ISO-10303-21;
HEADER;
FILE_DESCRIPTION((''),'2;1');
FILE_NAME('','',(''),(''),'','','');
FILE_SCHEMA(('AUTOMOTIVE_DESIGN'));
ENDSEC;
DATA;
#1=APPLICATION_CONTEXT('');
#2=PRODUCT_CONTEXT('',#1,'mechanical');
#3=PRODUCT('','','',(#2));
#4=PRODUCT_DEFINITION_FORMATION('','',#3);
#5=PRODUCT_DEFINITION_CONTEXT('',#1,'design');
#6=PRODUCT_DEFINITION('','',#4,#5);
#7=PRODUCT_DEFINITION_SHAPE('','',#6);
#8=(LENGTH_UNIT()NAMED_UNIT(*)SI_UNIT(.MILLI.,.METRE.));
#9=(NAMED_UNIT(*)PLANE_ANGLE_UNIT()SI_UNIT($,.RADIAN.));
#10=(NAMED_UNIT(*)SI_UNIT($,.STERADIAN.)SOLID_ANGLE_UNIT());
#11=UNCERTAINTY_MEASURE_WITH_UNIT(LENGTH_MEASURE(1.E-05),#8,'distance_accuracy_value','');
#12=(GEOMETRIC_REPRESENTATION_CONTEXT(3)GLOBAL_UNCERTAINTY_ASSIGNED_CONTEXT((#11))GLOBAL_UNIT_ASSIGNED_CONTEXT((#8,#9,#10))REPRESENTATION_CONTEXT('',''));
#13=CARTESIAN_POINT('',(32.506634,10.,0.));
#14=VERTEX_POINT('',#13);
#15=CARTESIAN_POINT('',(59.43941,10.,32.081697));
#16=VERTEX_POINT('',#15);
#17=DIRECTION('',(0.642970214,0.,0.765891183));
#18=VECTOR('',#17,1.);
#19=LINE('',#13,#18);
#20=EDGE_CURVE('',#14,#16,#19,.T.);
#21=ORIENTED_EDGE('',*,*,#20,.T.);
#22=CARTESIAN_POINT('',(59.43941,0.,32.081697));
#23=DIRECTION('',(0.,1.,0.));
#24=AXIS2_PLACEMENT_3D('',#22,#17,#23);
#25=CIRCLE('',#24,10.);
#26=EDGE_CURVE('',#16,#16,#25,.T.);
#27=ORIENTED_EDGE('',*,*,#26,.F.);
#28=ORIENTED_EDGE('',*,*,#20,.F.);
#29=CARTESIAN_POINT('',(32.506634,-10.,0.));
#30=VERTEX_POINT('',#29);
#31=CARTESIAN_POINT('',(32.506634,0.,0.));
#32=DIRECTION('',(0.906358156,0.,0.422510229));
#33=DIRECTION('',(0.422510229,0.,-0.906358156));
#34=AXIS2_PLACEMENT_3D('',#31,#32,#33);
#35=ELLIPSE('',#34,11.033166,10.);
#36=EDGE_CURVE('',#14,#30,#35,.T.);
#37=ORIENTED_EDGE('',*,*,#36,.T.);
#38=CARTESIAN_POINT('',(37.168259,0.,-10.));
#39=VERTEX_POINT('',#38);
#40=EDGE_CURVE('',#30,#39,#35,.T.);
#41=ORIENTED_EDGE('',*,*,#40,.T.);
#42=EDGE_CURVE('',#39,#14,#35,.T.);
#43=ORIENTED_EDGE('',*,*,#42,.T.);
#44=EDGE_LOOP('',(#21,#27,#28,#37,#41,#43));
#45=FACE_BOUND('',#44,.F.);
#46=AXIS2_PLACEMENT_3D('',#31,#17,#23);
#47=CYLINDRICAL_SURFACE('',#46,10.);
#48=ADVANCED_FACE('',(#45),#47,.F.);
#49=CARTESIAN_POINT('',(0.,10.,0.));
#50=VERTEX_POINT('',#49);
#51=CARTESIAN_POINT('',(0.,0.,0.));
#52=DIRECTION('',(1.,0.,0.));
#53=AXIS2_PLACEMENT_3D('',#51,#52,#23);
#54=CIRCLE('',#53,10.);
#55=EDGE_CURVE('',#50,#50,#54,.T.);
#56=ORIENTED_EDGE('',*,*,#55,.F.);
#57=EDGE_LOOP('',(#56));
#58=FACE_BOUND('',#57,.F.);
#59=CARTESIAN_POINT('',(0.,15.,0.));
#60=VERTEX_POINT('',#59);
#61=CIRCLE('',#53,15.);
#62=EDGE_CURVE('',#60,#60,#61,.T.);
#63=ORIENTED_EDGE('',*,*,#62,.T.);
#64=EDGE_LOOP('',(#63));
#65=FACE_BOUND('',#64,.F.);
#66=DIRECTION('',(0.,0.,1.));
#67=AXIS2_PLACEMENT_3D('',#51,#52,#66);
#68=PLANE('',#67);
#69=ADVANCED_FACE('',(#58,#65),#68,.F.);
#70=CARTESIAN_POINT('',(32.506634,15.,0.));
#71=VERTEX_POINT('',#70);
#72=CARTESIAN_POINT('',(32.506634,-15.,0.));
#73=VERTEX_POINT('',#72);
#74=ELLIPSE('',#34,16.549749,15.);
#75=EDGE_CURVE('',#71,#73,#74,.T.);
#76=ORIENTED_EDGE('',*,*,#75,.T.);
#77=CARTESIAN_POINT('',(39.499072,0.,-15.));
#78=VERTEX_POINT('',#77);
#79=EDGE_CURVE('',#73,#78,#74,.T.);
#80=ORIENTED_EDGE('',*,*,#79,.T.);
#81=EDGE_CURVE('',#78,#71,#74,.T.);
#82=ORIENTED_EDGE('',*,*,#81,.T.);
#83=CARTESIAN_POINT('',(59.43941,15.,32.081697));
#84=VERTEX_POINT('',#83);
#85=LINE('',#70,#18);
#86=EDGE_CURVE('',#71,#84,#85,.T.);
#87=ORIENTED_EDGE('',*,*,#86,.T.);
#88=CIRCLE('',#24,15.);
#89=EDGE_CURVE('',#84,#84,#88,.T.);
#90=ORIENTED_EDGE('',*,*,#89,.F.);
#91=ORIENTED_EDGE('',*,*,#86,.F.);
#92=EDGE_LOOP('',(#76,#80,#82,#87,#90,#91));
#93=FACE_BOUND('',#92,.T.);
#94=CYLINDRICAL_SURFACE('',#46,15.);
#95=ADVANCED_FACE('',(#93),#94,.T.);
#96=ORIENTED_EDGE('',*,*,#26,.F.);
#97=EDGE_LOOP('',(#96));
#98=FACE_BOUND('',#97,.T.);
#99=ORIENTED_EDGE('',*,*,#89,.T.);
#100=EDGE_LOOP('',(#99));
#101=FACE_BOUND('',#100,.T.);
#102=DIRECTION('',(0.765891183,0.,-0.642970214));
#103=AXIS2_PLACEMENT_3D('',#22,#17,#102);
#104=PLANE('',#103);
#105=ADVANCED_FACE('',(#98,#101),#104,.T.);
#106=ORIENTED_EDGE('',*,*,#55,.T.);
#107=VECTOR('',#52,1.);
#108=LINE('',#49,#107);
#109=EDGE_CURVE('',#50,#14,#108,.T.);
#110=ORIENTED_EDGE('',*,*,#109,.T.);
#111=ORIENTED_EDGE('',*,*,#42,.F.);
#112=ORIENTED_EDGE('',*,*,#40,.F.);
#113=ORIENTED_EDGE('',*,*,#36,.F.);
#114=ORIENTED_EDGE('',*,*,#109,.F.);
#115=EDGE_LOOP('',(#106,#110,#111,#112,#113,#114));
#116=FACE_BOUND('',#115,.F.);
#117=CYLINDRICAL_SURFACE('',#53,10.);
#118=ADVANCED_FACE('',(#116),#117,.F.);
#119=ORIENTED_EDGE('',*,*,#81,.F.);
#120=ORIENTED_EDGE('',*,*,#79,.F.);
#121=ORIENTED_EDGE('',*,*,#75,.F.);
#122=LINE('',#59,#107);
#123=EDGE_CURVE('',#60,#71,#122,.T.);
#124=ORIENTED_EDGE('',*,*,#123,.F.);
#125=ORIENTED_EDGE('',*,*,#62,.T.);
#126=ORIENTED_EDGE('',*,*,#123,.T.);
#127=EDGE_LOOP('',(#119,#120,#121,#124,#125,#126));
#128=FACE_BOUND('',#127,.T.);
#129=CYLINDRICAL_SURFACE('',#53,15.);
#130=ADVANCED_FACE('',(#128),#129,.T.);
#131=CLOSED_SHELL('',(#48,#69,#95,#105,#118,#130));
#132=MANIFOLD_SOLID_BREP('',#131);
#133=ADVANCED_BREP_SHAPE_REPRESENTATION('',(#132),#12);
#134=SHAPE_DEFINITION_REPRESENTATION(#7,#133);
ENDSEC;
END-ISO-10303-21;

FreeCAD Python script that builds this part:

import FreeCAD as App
import Part
import Sketcher

doc = App.newDocument("Part")
body = doc.addObject("PartDesign::Body", "Body")

# Sketch on YZ plane
sketch1 = doc.addObject("Sketcher::SketchObject", "Sketch")
body.addObject(sketch1)
sketch1.AttachmentSupport = (doc.YZ_Plane, [""])
sketch1.MapMode = "FlatFace"
sketch1.addGeometry(Part.Circle(App.Vector(0, 0, 0), App.Vector(0, 0, 1), 15), False)
sketch1.addGeometry(Part.Circle(App.Vector(0, 0, 0), App.Vector(0, 0, 1), 10), False)
sketch1.addConstraint(Sketcher.Constraint("Coincident", 0, 3, -1, 1))
sketch1.addConstraint(Sketcher.Constraint("Coincident", 1, 3, -1, 1))
sketch1.addConstraint(Sketcher.Constraint("Diameter", 0, 30.0))
sketch1.addConstraint(Sketcher.Constraint("Diameter", 1, 20.0))

# Sketch on XZ plane
sketch2 = doc.addObject("Sketcher::SketchObject", "Sketch001")
body.addObject(sketch2)
sketch2.AttachmentSupport = (doc.XZ_Plane, [""])
sketch2.MapMode = "FlatFace"
sketch2.addGeometry(Part.LineSegment(App.Vector(0, 0, 0), App.Vector(33, 0, 0)), False)
sketch2.addGeometry(Part.LineSegment(App.Vector(33, 0, 0), App.Vector(59, 32, 0)), False)
sketch2.addConstraint(Sketcher.Constraint("Coincident", 0, 2, 1, 1))
sketch2.addConstraint(Sketcher.Constraint("Horizontal", 0))
sketch2.addConstraint(Sketcher.Constraint("Coincident", 0, 1, -1, 1))
sketch2.addConstraint(Sketcher.Constraint("Distance", 1, 41.888062))
sketch2.addConstraint(Sketcher.Constraint("DistanceX", 0, 1, 0, 2, 32.506634))
sketch2.addConstraint(Sketcher.Constraint("DistanceX", -1, 1, 1, 2, 59.43941))
doc.recompute()

additivepipe = doc.addObject("PartDesign::AdditivePipe", "AdditivePipe")
body.addObject(additivepipe)
additivepipe.Profile = sketch1
additivepipe.Spine = (sketch2, ["Edge1", "Edge2"])
additivepipe.Transition = "Right corner"

doc.recompute()
